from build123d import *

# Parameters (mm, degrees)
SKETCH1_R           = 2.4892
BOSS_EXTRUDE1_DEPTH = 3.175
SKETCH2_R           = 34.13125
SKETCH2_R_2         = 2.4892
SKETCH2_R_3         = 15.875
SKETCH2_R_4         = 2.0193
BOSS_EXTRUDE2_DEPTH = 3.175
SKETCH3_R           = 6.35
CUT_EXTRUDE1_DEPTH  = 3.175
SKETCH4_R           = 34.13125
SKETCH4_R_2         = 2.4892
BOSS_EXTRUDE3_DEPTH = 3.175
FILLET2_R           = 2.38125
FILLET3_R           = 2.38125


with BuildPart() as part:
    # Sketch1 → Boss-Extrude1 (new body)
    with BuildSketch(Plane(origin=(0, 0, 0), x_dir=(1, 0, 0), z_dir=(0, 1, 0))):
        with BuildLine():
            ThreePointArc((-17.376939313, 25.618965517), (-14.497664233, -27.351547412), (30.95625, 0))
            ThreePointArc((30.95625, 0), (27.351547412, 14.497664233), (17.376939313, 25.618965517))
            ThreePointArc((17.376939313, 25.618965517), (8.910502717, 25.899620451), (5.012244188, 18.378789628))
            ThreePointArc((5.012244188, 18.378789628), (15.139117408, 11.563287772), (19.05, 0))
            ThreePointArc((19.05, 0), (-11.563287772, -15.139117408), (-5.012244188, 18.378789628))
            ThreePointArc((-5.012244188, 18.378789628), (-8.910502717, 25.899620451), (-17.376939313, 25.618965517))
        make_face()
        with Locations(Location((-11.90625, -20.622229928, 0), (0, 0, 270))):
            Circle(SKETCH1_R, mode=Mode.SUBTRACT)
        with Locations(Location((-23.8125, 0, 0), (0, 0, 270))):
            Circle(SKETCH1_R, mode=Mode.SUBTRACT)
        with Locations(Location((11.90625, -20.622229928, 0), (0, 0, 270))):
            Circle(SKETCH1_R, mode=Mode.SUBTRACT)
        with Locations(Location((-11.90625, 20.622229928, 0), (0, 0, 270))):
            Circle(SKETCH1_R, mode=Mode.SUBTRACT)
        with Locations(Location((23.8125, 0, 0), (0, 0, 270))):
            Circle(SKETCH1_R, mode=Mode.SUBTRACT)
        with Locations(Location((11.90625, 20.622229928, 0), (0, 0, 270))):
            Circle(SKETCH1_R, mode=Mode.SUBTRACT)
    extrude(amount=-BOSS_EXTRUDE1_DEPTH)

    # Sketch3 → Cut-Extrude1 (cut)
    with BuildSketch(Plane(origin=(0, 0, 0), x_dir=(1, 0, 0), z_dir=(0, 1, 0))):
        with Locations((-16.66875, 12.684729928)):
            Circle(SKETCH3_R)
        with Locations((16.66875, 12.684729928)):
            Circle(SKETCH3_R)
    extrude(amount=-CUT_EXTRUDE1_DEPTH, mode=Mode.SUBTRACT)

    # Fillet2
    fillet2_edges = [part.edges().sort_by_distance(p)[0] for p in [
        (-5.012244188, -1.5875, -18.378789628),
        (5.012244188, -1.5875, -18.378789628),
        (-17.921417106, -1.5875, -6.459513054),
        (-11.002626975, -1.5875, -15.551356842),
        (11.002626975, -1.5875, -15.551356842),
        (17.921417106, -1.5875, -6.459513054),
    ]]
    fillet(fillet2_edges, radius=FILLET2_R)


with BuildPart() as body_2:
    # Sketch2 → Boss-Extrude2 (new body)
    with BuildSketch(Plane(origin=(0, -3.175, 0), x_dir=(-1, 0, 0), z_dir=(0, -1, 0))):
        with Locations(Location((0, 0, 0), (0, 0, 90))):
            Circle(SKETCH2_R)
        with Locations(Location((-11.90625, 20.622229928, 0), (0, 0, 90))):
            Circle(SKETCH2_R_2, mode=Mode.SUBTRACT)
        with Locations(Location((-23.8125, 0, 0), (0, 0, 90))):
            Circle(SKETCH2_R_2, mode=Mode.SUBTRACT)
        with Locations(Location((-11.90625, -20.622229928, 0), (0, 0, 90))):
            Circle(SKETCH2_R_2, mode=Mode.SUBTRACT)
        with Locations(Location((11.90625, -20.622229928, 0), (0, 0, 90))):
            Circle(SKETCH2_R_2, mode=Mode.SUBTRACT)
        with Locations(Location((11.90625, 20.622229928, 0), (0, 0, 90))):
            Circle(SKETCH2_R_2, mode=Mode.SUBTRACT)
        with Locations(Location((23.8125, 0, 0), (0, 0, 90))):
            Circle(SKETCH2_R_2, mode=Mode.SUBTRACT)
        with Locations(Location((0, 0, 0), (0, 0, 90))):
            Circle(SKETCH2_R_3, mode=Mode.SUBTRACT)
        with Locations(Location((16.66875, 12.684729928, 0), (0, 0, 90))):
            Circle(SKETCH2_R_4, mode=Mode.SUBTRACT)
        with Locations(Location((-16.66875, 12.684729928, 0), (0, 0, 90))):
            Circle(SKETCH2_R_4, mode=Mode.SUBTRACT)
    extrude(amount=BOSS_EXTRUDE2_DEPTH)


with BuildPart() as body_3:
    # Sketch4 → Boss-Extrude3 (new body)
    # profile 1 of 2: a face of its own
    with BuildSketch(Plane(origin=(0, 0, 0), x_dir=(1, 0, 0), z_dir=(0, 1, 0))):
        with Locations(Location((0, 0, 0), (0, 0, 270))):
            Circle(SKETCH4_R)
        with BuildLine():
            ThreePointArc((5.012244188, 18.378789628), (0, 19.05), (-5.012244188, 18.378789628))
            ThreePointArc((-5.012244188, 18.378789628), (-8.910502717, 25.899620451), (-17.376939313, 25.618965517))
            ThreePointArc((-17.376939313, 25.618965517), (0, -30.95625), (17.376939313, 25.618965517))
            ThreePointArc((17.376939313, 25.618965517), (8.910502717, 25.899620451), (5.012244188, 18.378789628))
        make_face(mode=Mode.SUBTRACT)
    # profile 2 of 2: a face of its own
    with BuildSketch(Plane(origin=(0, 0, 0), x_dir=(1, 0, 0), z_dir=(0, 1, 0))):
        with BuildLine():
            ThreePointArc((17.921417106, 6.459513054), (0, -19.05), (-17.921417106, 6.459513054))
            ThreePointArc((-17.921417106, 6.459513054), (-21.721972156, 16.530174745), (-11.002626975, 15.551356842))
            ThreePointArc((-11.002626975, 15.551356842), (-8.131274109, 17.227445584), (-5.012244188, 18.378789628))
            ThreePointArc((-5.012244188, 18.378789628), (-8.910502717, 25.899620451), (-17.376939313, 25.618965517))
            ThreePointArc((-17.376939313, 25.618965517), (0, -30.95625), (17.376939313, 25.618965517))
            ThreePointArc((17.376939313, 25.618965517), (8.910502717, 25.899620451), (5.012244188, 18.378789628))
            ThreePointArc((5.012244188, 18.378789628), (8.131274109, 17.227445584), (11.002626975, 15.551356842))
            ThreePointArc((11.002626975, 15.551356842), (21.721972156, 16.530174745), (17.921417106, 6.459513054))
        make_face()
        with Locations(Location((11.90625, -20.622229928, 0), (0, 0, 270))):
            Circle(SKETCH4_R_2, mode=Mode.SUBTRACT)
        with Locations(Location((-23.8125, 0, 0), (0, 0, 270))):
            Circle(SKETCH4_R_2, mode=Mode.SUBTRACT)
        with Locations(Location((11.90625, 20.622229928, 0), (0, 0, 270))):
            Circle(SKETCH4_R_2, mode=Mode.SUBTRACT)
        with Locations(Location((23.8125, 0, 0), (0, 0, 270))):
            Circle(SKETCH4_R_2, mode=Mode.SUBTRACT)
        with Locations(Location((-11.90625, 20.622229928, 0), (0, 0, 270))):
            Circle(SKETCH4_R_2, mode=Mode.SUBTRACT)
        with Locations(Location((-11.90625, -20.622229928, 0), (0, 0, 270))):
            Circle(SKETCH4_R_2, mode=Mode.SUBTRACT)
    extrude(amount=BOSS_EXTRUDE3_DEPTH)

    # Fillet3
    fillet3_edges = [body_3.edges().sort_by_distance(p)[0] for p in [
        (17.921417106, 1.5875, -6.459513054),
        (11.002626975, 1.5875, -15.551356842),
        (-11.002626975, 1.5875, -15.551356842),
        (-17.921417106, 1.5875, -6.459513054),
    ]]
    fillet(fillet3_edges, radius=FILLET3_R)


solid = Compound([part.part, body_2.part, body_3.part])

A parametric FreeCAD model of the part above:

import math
import FreeCAD as App
import Part
import Sketcher

V = App.Vector
Q = App.Units.Quantity


def edges_at(feature, points):
    """Names of the edges that pass closest to the given points."""
    edges = feature.Shape.Edges
    near = lambda p: min(range(len(edges)), key=lambda i: edges[i].distToShape(Part.Vertex(*p))[0])
    return sorted({f"Edge{near(p) + 1}" for p in points})

doc = App.newDocument("Part")
body = doc.addObject("PartDesign::Body", "Body")

# Sketch on XZ plane
sketch1 = body.newObject("Sketcher::SketchObject", "Sketch")
sketch1.AttachmentSupport = (doc.getObject("XZ_Plane"), [""])
sketch1.MapMode = "FlatFace"
sketch1.addGeometry(Part.ArcOfCircle(Part.Circle(V(0, 0, 0), V(0, 0, 1), 31), math.radians(0), math.radians(236)), False)
sketch1.addGeometry(Part.ArcOfCircle(Part.Circle(V(0, 0, 0), V(0, 0, 1), 31), math.radians(-56), math.radians(0)), False)
sketch1.addGeometry(Part.ArcOfCircle(Part.Circle(V(12.9, -19.1, 0), V(0, 0, 1), 7.9), math.radians(175), math.radians(304)), False)
sketch1.addGeometry(Part.ArcOfCircle(Part.Circle(V(0, 0, 0), V(0, 0, 1), 19.1), math.radians(-75), math.radians(0)), False)
sketch1.addGeometry(Part.ArcOfCircle(Part.Circle(V(0, 0, 0), V(0, 0, 1), 19.1), math.radians(0), math.radians(255)), False)
sketch1.addGeometry(Part.ArcOfCircle(Part.Circle(V(-12.9, -19.1, 0), V(0, 0, 1), 7.9), math.radians(-124), math.radians(5)), False)
sketch1.addGeometry(Part.Circle(V(-11.9, 20.6, 0), V(0, 0, 1), 2.5), False)
sketch1.addGeometry(Part.Circle(V(11.9, 20.6, 0), V(0, 0, 1), 2.5), False)
sketch1.addGeometry(Part.Circle(V(-23.8, 0, 0), V(0, 0, 1), 2.5), False)
sketch1.addGeometry(Part.Circle(V(-11.9, -20.6, 0), V(0, 0, 1), 2.5), False)
sketch1.addGeometry(Part.Circle(V(23.8, 0, 0), V(0, 0, 1), 2.5), False)
sketch1.addGeometry(Part.Circle(V(11.9, -20.6, 0), V(0, 0, 1), 2.5), False)
sketch1.addConstraint(Sketcher.Constraint("Tangent", 0, 1, 1, 2))
sketch1.addConstraint(Sketcher.Constraint("Tangent", 1, 1, 2, 2))
sketch1.addConstraint(Sketcher.Constraint("Coincident", 2, 1, 3, 1))
sketch1.addConstraint(Sketcher.Constraint("Tangent", 3, 2, 4, 1))
sketch1.addConstraint(Sketcher.Constraint("Coincident", 4, 2, 5, 2))
sketch1.addConstraint(Sketcher.Constraint("Tangent", 5, 1, 0, 2))
sketch1.addConstraint(Sketcher.Constraint("Coincident", 0, 3, -1, 1))
sketch1.addConstraint(Sketcher.Constraint("Coincident", 3, 3, -1, 1))
sketch1.addConstraint(Sketcher.Constraint("Equal", 0, 1))
sketch1.addConstraint(Sketcher.Constraint("Equal", 3, 4))
sketch1.addConstraint(Sketcher.Constraint("Equal", 2, 5))
sketch1.addConstraint(Sketcher.Constraint("Equal", 6, 7))
sketch1.addConstraint(Sketcher.Constraint("Equal", 7, 8))
sketch1.addConstraint(Sketcher.Constraint("Equal", 8, 9))
sketch1.addConstraint(Sketcher.Constraint("Equal", 9, 10))
sketch1.addConstraint(Sketcher.Constraint("Equal", 10, 11))
sketch1.addConstraint(Sketcher.Constraint("Symmetric", 7, 3, 9, 3, -1, 1))
sketch1.addConstraint(Sketcher.Constraint("Symmetric", 8, 3, 10, 3, -1, 1))
sketch1.addConstraint(Sketcher.Constraint("Symmetric", 6, 3, 11, 3, -1, 1))
sketch1.addConstraint(Sketcher.Constraint("Symmetric", 6, 3, 7, 3, -2))
sketch1.addConstraint(Sketcher.Constraint("PointOnObject", 8, 3, -1))
sketch1.addConstraint(Sketcher.Constraint("PointOnObject", 0, 1, -1))
sketch1.addConstraint(Sketcher.Constraint("PointOnObject", 3, 2, -1))
sketch1.addConstraint(Sketcher.Constraint("Horizontal", 2, 3, 5, 3))
sketch1.addConstraint(Sketcher.Constraint("Radius", 3, Q("0.75 in")))
sketch1.addConstraint(Sketcher.Constraint("Diameter", 6, Q("0.196 in")))
sketch1.addConstraint(Sketcher.Constraint("Radius", 0, Q("1.21875 in")))
sketch1.addConstraint(Sketcher.Constraint("Radius", 2, Q("0.3125 in")))
sketch1.addConstraint(Sketcher.Constraint("DistanceY", 2, 3, -1, 1, Q("0.75 in")))
sketch1.addConstraint(Sketcher.Constraint("DistanceX", 7, 3, 0, 1, Q("0.75 in")))
sketch1.addConstraint(Sketcher.Constraint("DistanceX", 8, 3, -1, 1, Q("0.9375 in")))
sketch1.addConstraint(Sketcher.Constraint("DistanceY", -1, 1, 6, 3, Q("20.62223 mm")))
pad1 = body.newObject("PartDesign::Pad", "Pad")
pad1.Profile = sketch1
pad1.Length = Q("0.125 in")

# Sketch on XZ plane
sketch2 = body.newObject("Sketcher::SketchObject", "Sketch001")
sketch2.AttachmentSupport = (doc.getObject("XZ_Plane"), [""])
sketch2.MapMode = "FlatFace"
sketch2.addGeometry(Part.Circle(V(-17, -13, 0), V(0, 0, 1), 6), False)
sketch2.addGeometry(Part.Circle(V(17, -13, 0), V(0, 0, 1), 6), False)
sketch2.addConstraint(Sketcher.Constraint("Equal", 0, 1))
sketch2.addConstraint(Sketcher.Constraint("Symmetric", 0, 3, 1, 3, -2))
sketch2.addConstraint(Sketcher.Constraint("Diameter", 0, Q("0.5 in")))
sketch2.addConstraint(Sketcher.Constraint("DistanceX", 0, 3, -1, 1, Q("0.65625 in")))
sketch2.addConstraint(Sketcher.Constraint("DistanceY", 0, 3, -1, 1, Q("12.68473 mm")))
pocket1 = body.newObject("PartDesign::Pocket", "Pocket")
pocket1.Profile = sketch2
pocket1.Length = Q("0.125 in")
pocket1.Reversed = True
doc.recompute()

fillet = body.newObject("PartDesign::Fillet", "Fillet")
fillet.Base = (pocket1, edges_at(pocket1, [
    (-5.012, -1.587, -18.379),
    (5.012, -1.587, -18.379),
    (-17.921, -1.587, -6.46),
    (-11.003, -1.587, -15.551),
    (11.003, -1.587, -15.551),
    (17.921, -1.587, -6.46),
]))
fillet.Radius = Q("0.09375 in")
body2 = doc.addObject("PartDesign::Body", "Body001")

# Sketch on XZ plane
sketch3 = body2.newObject("Sketcher::SketchObject", "Sketch002")
sketch3.AttachmentSupport = (doc.getObject("XZ_Plane001"), [""])
sketch3.MapMode = "FlatFace"
sketch3.AttachmentOffset = App.Placement(V(0, 0, 0.125 * 25.4), App.Rotation())
sketch3.addGeometry(Part.Circle(V(0, 0, 0), V(0, 0, 1), 34.1), False)
sketch3.addGeometry(Part.Circle(V(-11.9, 20.6, 0), V(0, 0, 1), 2.5), False)
sketch3.addGeometry(Part.Circle(V(0, 0, 0), V(0, 0, 1), 15.9), False)
sketch3.addGeometry(Part.Circle(V(-23.8, 0, 0), V(0, 0, 1), 2.5), False)
sketch3.addGeometry(Part.Circle(V(-16.7, -12.7, 0), V(0, 0, 1), 2), False)
sketch3.addGeometry(Part.Circle(V(-11.9, -20.6, 0), V(0, 0, 1), 2.5), False)
sketch3.addGeometry(Part.Circle(V(11.9, 20.6, 0), V(0, 0, 1), 2.5), False)
sketch3.addGeometry(Part.Circle(V(23.8, 0, 0), V(0, 0, 1), 2.5), False)
sketch3.addGeometry(Part.Circle(V(11.9, -20.6, 0), V(0, 0, 1), 2.5), False)
sketch3.addGeometry(Part.Circle(V(16.7, -12.7, 0), V(0, 0, 1), 2), False)
sketch3.addConstraint(Sketcher.Constraint("Coincident", 0, 3, -1, 1))
sketch3.addConstraint(Sketcher.Constraint("Coincident", 2, 3, -1, 1))
sketch3.addConstraint(Sketcher.Constraint("Equal", 1, 3))
sketch3.addConstraint(Sketcher.Constraint("Equal", 3, 5))
sketch3.addConstraint(Sketcher.Constraint("Equal", 5, 6))
sketch3.addConstraint(Sketcher.Constraint("Equal", 6, 7))
sketch3.addConstraint(Sketcher.Constraint("Equal", 7, 8))
sketch3.addConstraint(Sketcher.Constraint("Equal", 4, 9))
sketch3.addConstraint(Sketcher.Constraint("Symmetric", 5, 3, 6, 3, -1, 1))
sketch3.addConstraint(Sketcher.Constraint("Symmetric", 3, 3, 7, 3, -1, 1))
sketch3.addConstraint(Sketcher.Constraint("Symmetric", 1, 3, 8, 3, -1, 1))
sketch3.addConstraint(Sketcher.Constraint("Symmetric", 1, 3, 6, 3, -2))
sketch3.addConstraint(Sketcher.Constraint("Symmetric", 4, 3, 9, 3, -2))
sketch3.addConstraint(Sketcher.Constraint("PointOnObject", 3, 3, -1))
sketch3.addConstraint(Sketcher.Constraint("Diameter", 2, Q("1.25 in")))
sketch3.addConstraint(Sketcher.Constraint("Diameter", 0, Q("2.6875 in")))
sketch3.addConstraint(Sketcher.Constraint("Diameter", 1, Q("0.196 in")))
sketch3.addConstraint(Sketcher.Constraint("Diameter", 4, Q("0.159 in")))
sketch3.addConstraint(Sketcher.Constraint("DistanceX", 1, 3, -1, 1, Q("0.46875 in")))
sketch3.addConstraint(Sketcher.Constraint("DistanceX", 3, 3, -1, 1, Q("0.9375 in")))
sketch3.addConstraint(Sketcher.Constraint("DistanceX", 4, 3, -1, 1, Q("0.65625 in")))
sketch3.addConstraint(Sketcher.Constraint("DistanceY", 5, 3, 4, 3, Q("0.3125 in")))
sketch3.addConstraint(Sketcher.Constraint("DistanceY", -1, 1, 1, 3, Q("20.62223 mm")))
pad2 = body2.newObject("PartDesign::Pad", "Pad001")
pad2.Profile = sketch3
pad2.Length = Q("0.125 in")
body3 = doc.addObject("PartDesign::Body", "Body002")

# Sketch on XZ plane
sketch4 = body3.newObject("Sketcher::SketchObject", "Sketch003")
sketch4.AttachmentSupport = (doc.getObject("XZ_Plane002"), [""])
sketch4.MapMode = "FlatFace"
sketch4.addGeometry(Part.Circle(V(0, 0, 0), V(0, 0, 1), 34.1), False)
sketch4.addGeometry(Part.ArcOfCircle(Part.Circle(V(0, 0, 0), V(0, 0, 1), 19), math.radians(-105), math.radians(-75)), False)
sketch4.addGeometry(Part.ArcOfCircle(Part.Circle(V(0, 0, 0), V(0, 0, 1), 19), math.radians(-75), math.radians(-55)), False)
sketch4.addGeometry(Part.ArcOfCircle(Part.Circle(V(16.7, -12.7, 0), V(0, 0, 1), 6.3), math.radians(-153), math.radians(79)), False)
sketch4.addGeometry(Part.ArcOfCircle(Part.Circle(V(0, 0, 0), V(0, 0, 1), 19.1), math.radians(-20), math.radians(200)), False)
sketch4.addGeometry(Part.ArcOfCircle(Part.Circle(V(-16.7, -12.7, 0), V(0, 0, 1), 6.3), math.radians(101), math.radians(333)), False)
sketch4.addGeometry(Part.ArcOfCircle(Part.Circle(V(0, 0, 0), V(0, 0, 1), 19), math.radians(-125), math.radians(-105)), False)
sketch4.addGeometry(Part.Circle(V(-11.9, -20.6, 0), V(0, 0, 1), 2.5), False)
sketch4.addGeometry(Part.Circle(V(11.9, -20.6, 0), V(0, 0, 1), 2.5), False)
sketch4.addGeometry(Part.Circle(V(23.8, 0, 0), V(0, 0, 1), 2.5), False)
sketch4.addGeometry(Part.Circle(V(-11.9, 20.6, 0), V(0, 0, 1), 2.5), False)
sketch4.addGeometry(Part.Circle(V(11.9, 20.6, 0), V(0, 0, 1), 2.5), False)
sketch4.addGeometry(Part.Circle(V(-23.8, 0, 0), V(0, 0, 1), 2.5), False)
sketch4.addConstraint(Sketcher.Constraint("Tangent", 1, 2, 2, 1))
sketch4.addConstraint(Sketcher.Constraint("Coincident", 2, 2, 3, 1))
sketch4.addConstraint(Sketcher.Constraint("Coincident", 3, 2, 4, 1))
sketch4.addConstraint(Sketcher.Constraint("Coincident", 4, 2, 5, 1))
sketch4.addConstraint(Sketcher.Constraint("Coincident", 5, 2, 6, 1))
sketch4.addConstraint(Sketcher.Constraint("Tangent", 6, 2, 1, 1))
sketch4.addConstraint(Sketcher.Constraint("Coincident", 0, 3, -1, 1))
sketch4.addConstraint(Sketcher.Constraint("Coincident", 1, 3, -1, 1))
sketch4.addConstraint(Sketcher.Constraint("Coincident", 4, 3, -1, 1))
sketch4.addConstraint(Sketcher.Constraint("Equal", 1, 2))
sketch4.addConstraint(Sketcher.Constraint("Equal", 2, 4))
sketch4.addConstraint(Sketcher.Constraint("Equal", 3, 5))
sketch4.addConstraint(Sketcher.Constraint("Equal", 4, 6))
sketch4.addConstraint(Sketcher.Constraint("Equal", 7, 8))
sketch4.addConstraint(Sketcher.Constraint("Equal", 8, 9))
sketch4.addConstraint(Sketcher.Constraint("Equal", 9, 10))
sketch4.addConstraint(Sketcher.Constraint("Equal", 10, 11))
sketch4.addConstraint(Sketcher.Constraint("Equal", 11, 12))
sketch4.addConstraint(Sketcher.Constraint("Symmetric", 8, 3, 10, 3, -1, 1))
sketch4.addConstraint(Sketcher.Constraint("Symmetric", 7, 3, 11, 3, -1, 1))
sketch4.addConstraint(Sketcher.Constraint("Symmetric", 9, 3, 12, 3, -1, 1))
sketch4.addConstraint(Sketcher.Constraint("Symmetric", 3, 3, 5, 3, -2))
sketch4.addConstraint(Sketcher.Constraint("Symmetric", 7, 3, 8, 3, -2))
sketch4.addConstraint(Sketcher.Constraint("PointOnObject", 9, 3, -1))
sketch4.addConstraint(Sketcher.Constraint("Horizontal", 1, 2, 6, 2))
sketch4.addConstraint(Sketcher.Constraint("Radius", 1, Q("0.75 in")))
sketch4.addConstraint(Sketcher.Constraint("Radius", 3, Q("0.25 in")))
sketch4.addConstraint(Sketcher.Constraint("Diameter", 0, Q("2.6875 in")))
sketch4.addConstraint(Sketcher.Constraint("Diameter", 7, Q("0.196 in")))
sketch4.addConstraint(Sketcher.Constraint("DistanceX", -1, 1, 3, 3, Q("0.65625 in")))
sketch4.addConstraint(Sketcher.Constraint("DistanceX", 7, 3, -1, 1, Q("0.46875 in")))
sketch4.addConstraint(Sketcher.Constraint("DistanceX", -1, 1, 9, 3, Q("0.9375 in")))
sketch4.addConstraint(Sketcher.Constraint("DistanceY", 7, 3, 5, 3, Q("0.3125 in")))
sketch4.addConstraint(Sketcher.Constraint("DistanceY", 3, 3, -1, 1, Q("12.68473 mm")))
sketch4.addConstraint(Sketcher.Constraint("DistanceY", 1, 2, -1, 1, Q("18.37879 mm")))
pad3 = body3.newObject("PartDesign::Pad", "Pad002")
pad3.Profile = sketch4
pad3.Length = Q("0.125 in")
pad3.Reversed = True
doc.recompute()

fillet2 = body3.newObject("PartDesign::Fillet", "Fillet001")
fillet2.Base = (pad3, edges_at(pad3, [
    (17.921, 1.587, -6.46),
    (11.003, 1.587, -15.551),
    (-11.003, 1.587, -15.551),
    (-17.921, 1.587, -6.46),
]))
fillet2.Radius = Q("0.09375 in")

doc.recompute()
